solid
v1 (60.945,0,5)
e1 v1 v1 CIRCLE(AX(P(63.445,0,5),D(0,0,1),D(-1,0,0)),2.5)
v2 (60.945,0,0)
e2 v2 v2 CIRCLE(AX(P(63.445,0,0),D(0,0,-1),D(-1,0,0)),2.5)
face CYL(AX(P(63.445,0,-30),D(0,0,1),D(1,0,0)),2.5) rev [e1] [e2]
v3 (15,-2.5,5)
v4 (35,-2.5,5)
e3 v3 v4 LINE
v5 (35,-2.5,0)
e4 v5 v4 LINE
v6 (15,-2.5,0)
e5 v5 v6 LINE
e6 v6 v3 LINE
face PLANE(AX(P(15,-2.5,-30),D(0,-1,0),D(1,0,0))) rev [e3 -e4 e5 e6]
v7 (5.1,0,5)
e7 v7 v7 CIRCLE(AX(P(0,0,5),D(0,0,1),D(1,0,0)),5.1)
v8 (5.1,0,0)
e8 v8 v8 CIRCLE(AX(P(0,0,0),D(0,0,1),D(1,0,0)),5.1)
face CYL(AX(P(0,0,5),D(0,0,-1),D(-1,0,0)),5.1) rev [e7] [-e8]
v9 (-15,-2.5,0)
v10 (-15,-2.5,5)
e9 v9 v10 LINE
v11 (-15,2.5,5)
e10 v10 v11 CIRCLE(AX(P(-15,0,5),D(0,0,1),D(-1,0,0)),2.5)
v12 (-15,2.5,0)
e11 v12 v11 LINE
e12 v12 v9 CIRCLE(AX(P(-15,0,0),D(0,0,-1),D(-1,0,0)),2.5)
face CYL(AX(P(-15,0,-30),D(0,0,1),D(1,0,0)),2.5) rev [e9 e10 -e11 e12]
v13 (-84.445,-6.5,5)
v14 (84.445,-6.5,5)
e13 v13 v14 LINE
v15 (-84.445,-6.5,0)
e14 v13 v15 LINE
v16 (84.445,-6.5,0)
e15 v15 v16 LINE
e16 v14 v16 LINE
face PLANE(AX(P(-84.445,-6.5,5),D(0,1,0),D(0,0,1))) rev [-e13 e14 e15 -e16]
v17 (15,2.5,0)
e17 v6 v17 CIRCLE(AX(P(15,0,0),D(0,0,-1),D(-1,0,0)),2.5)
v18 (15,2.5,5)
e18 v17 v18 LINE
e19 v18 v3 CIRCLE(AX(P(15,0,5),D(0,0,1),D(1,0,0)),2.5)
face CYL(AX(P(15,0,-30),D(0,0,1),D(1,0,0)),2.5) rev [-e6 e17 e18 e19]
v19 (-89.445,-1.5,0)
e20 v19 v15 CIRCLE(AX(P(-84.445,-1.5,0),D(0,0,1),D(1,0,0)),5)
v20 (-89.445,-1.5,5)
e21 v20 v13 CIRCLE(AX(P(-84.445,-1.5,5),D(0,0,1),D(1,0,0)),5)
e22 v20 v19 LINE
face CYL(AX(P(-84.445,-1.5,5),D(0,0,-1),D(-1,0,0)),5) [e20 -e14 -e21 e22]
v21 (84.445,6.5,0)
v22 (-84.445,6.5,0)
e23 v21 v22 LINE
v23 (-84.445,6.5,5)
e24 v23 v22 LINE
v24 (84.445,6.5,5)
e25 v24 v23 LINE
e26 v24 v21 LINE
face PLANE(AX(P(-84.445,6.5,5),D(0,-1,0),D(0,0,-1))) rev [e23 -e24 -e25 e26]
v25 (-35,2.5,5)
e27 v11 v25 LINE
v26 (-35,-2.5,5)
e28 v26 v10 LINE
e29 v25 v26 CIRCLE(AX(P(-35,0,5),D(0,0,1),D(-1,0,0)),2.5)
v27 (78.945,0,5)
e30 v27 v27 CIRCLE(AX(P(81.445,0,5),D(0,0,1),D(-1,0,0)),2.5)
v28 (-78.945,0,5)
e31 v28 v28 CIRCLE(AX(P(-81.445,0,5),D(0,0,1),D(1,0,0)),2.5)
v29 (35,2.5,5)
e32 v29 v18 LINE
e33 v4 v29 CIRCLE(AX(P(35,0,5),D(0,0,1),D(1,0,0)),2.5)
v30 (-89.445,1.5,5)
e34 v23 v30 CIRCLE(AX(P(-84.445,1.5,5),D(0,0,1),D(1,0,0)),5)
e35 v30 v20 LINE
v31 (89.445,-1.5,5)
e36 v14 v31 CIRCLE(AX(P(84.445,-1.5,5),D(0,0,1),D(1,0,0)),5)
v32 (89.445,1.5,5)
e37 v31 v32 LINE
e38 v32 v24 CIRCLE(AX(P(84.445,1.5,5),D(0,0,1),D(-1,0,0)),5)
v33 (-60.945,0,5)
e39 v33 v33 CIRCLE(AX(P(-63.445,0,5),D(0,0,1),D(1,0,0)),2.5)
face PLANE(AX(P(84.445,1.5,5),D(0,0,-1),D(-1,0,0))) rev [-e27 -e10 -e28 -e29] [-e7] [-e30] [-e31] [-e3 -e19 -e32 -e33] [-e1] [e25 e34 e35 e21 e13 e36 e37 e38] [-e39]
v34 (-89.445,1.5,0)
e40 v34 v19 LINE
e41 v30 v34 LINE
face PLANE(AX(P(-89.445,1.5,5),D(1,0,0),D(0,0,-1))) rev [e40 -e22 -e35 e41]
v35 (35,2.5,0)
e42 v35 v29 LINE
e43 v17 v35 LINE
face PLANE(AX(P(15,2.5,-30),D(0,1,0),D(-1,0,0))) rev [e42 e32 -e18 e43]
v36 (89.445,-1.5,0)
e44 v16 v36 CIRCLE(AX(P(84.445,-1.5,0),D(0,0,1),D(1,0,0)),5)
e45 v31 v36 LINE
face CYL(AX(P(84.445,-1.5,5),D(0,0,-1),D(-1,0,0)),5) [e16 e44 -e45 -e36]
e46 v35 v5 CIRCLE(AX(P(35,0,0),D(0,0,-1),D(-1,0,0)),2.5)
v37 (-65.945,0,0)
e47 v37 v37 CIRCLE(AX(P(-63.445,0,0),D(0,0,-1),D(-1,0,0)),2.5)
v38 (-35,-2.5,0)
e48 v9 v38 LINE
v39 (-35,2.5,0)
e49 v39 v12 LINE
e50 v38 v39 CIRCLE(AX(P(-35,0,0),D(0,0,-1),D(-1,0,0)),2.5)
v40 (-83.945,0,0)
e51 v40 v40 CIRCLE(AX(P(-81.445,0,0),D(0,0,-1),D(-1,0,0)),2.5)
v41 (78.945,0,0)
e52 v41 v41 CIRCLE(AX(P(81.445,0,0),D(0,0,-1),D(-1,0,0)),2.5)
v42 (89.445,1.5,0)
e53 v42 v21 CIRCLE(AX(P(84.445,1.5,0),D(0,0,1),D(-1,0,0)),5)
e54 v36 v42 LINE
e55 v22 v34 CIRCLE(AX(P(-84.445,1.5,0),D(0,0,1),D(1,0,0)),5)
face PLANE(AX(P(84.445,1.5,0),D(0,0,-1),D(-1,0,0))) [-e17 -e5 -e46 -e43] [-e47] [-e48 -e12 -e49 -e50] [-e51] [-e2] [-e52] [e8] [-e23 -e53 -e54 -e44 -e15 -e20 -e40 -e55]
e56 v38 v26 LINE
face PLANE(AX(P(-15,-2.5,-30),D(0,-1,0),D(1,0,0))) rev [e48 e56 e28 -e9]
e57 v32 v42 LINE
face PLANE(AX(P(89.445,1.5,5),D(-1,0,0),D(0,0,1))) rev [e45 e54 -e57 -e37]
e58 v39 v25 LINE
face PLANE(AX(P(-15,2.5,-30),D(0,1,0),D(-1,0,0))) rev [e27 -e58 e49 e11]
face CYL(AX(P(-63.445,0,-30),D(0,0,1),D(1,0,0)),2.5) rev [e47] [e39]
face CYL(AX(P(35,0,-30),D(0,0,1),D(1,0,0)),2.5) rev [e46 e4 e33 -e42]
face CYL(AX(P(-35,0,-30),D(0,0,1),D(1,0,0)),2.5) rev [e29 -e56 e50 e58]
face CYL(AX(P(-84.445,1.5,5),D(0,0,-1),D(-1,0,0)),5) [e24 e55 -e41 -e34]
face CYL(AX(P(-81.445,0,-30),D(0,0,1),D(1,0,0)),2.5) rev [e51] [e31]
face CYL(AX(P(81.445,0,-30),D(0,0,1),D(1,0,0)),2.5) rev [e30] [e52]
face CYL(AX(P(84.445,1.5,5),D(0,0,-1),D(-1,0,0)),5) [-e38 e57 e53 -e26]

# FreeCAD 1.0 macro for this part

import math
import FreeCAD as App
import Part
import Sketcher
Q = App.Units.Quantity

doc = App.newDocument("Part")
params = doc.addObject("Spreadsheet::Sheet", "Params")
for row, (alias, value) in enumerate([
    ("sketch1_radius", "5 mm"),
    ("sketch1_diameter", "10.2 mm"),
    ("sketch1_height", "3 mm"),
    ("sketch1_width", "168.89 mm"),
    ("pad1_length", "5 mm"),
    ("sketch2_diameter", "5 mm"),
    ("sketch2_width", "20 mm"),
    ("pocket1_length", "35 mm"),
], start=1):
    params.set(f"A{row}", alias)
    params.set(f"B{row}", "=" + value)
    params.setAlias(f"B{row}", alias)

body = doc.addObject("PartDesign::Body", "Body")

sketch1 = body.newObject("Sketcher::SketchObject", "Sketch")
sketch1.AttachmentSupport = (doc.getObject("XY_Plane"), [""])
sketch1.MapMode = "FlatFace"
sketch1.addGeometry([
    Part.LineSegment(App.Vector(84.445, 6.5, 0), App.Vector(-84.445, 6.5, 0)),
    Part.ArcOfCircle(Part.Circle(App.Vector(-84.445, 1.5, 0), App.Vector(0, 0, 1), 5), math.radians(90), math.radians(180)),
    Part.LineSegment(App.Vector(-89.445, 1.5, 0), App.Vector(-89.445, -1.5, 0)),
    Part.ArcOfCircle(Part.Circle(App.Vector(-84.445, -1.5, 0), App.Vector(0, 0, 1), 5), math.radians(180), math.radians(270)),
    Part.LineSegment(App.Vector(-84.445, -6.5, 0), App.Vector(84.445, -6.5, 0)),
    Part.ArcOfCircle(Part.Circle(App.Vector(84.445, -1.5, 0), App.Vector(0, 0, 1), 5), math.radians(-90), math.radians(0)),
    Part.LineSegment(App.Vector(89.445, -1.5, 0), App.Vector(89.445, 1.5, 0)),
    Part.ArcOfCircle(Part.Circle(App.Vector(84.445, 1.5, 0), App.Vector(0, 0, 1), 5), math.radians(0), math.radians(90)),
    Part.Circle(App.Vector(0, 0, 0), App.Vector(0, 0, 1), 5.1),
], False)
sketch1.addConstraint([
    Sketcher.Constraint("Tangent", 0, 2, 1, 1),
    Sketcher.Constraint("Tangent", 1, 2, 2, 1),
    Sketcher.Constraint("Tangent", 2, 2, 3, 1),
    Sketcher.Constraint("Tangent", 3, 2, 4, 1),
    Sketcher.Constraint("Tangent", 4, 2, 5, 1),
    Sketcher.Constraint("Tangent", 5, 2, 6, 1),
    Sketcher.Constraint("Tangent", 6, 2, 7, 1),
    Sketcher.Constraint("Tangent", 7, 2, 0, 1),
    Sketcher.Constraint("Horizontal", 0),
    Sketcher.Constraint("Vertical", 2),
    Sketcher.Constraint("Horizontal", 4),
    Sketcher.Constraint("Vertical", 6),
    Sketcher.Constraint("Coincident", 8, 3, -1, 1),
    Sketcher.Constraint("Equal", 1, 3),
    Sketcher.Constraint("Equal", 3, 5),
    Sketcher.Constraint("Equal", 5, 7),
    Sketcher.Constraint("Symmetric", 1, 3, 5, 3, -1, 1),
    Sketcher.Constraint("Radius", 1, Q("5 mm")),
    Sketcher.Constraint("Diameter", 8, Q("10.2 mm")),
    Sketcher.Constraint("DistanceY", 2, 2, 2, 1, Q("3 mm")),
    Sketcher.Constraint("DistanceX", 0, 2, 0, 1, Q("168.89 mm")),
])
sketch1.setExpression("Constraints[17]", "Params.sketch1_radius")
sketch1.setExpression("Constraints[18]", "Params.sketch1_diameter")
sketch1.setExpression("Constraints[19]", "Params.sketch1_height")
sketch1.setExpression("Constraints[20]", "Params.sketch1_width")
pad1 = body.newObject("PartDesign::Pad", "Pad")
pad1.Profile = sketch1
pad1.setExpression("Length", "Params.pad1_length")

sketch2 = body.newObject("Sketcher::SketchObject", "Sketch001")
sketch2.AttachmentSupport = (doc.getObject("XY_Plane"), [""])
sketch2.MapMode = "FlatFace"
sketch2.AttachmentOffset = App.Placement(App.Vector(0, 0, 5), App.Rotation())
sketch2.addGeometry([
    Part.Circle(App.Vector(-81.445, 0, 0), App.Vector(0, 0, 1), 2.5),
    Part.Circle(App.Vector(-63.445, 0, 0), App.Vector(0, 0, 1), 2.5),
    Part.Circle(App.Vector(63.445, 0, 0), App.Vector(0, 0, 1), 2.5),
    Part.Circle(App.Vector(81.445, 0, 0), App.Vector(0, 0, 1), 2.5),
    Part.LineSegment(App.Vector(35, 2.5, 0), App.Vector(15, 2.5, 0)),
    Part.ArcOfCircle(Part.Circle(App.Vector(15, 0, 0), App.Vector(0, 0, 1), 2.5), math.radians(90), math.radians(270)),
    Part.LineSegment(App.Vector(15, -2.5, 0), App.Vector(35, -2.5, 0)),
    Part.ArcOfCircle(Part.Circle(App.Vector(35, 0, 0), App.Vector(0, 0, 1), 2.5), math.radians(-90), math.radians(90)),
    Part.LineSegment(App.Vector(-15, 2.5, 0), App.Vector(-35, 2.5, 0)),
    Part.ArcOfCircle(Part.Circle(App.Vector(-35, 0, 0), App.Vector(0, 0, 1), 2.5), math.radians(90), math.radians(270)),
    Part.LineSegment(App.Vector(-35, -2.5, 0), App.Vector(-15, -2.5, 0)),
    Part.ArcOfCircle(Part.Circle(App.Vector(-15, 0, 0), App.Vector(0, 0, 1), 2.5), math.radians(-90), math.radians(90)),
], False)
sketch2.addConstraint([
    Sketcher.Constraint("Tangent", 4, 2, 5, 1),
    Sketcher.Constraint("Tangent", 5, 2, 6, 1),
    Sketcher.Constraint("Tangent", 6, 2, 7, 1),
    Sketcher.Constraint("Tangent", 7, 2, 4, 1),
    Sketcher.Constraint("Tangent", 8, 2, 9, 1),
    Sketcher.Constraint("Tangent", 9, 2, 10, 1),
    Sketcher.Constraint("Tangent", 10, 2, 11, 1),
    Sketcher.Constraint("Tangent", 11, 2, 8, 1),
    Sketcher.Constraint("Horizontal", 4),
    Sketcher.Constraint("Horizontal", 6),
    Sketcher.Constraint("Horizontal", 8),
    Sketcher.Constraint("Horizontal", 10),
    Sketcher.Constraint("Equal", 0, 1),
    Sketcher.Constraint("Equal", 1, 2),
    Sketcher.Constraint("Equal", 2, 3),
    Sketcher.Constraint("Equal", 3, 5),
    Sketcher.Constraint("Equal", 7, 9),
    Sketcher.Constraint("Symmetric", 1, 3, 2, 3, -1, 1),
    Sketcher.Constraint("Symmetric", 0, 3, 3, 3, -1, 1),
    Sketcher.Constraint("Symmetric", 7, 3, 9, 3, -1, 1),
    Sketcher.Constraint("Symmetric", 5, 3, 11, 3, -2),
    Sketcher.Constraint("PointOnObject", 0, 3, -1),
    Sketcher.Constraint("PointOnObject", 1, 3, -1),
    Sketcher.Constraint("Diameter", 0, Q("5 mm")),
    Sketcher.Constraint("DistanceX", 4, 2, 4, 1, Q("20 mm")),
    Sketcher.Constraint("DistanceX", -1, 1, 5, 3, Q("15 mm")),
    Sketcher.Constraint("DistanceX", 0, 3, 1, 3, Q("18 mm")),
    Sketcher.Constraint("DistanceX", 1, 3, 2, 3, Q("126.89 mm")),
])
sketch2.setExpression("Constraints[23]", "Params.sketch2_diameter")
sketch2.setExpression("Constraints[24]", "Params.sketch2_width")
pocket1 = body.newObject("PartDesign::Pocket", "Pocket")
pocket1.Profile = sketch2
pocket1.setExpression("Length", "Params.pocket1_length")

doc.recompute()
